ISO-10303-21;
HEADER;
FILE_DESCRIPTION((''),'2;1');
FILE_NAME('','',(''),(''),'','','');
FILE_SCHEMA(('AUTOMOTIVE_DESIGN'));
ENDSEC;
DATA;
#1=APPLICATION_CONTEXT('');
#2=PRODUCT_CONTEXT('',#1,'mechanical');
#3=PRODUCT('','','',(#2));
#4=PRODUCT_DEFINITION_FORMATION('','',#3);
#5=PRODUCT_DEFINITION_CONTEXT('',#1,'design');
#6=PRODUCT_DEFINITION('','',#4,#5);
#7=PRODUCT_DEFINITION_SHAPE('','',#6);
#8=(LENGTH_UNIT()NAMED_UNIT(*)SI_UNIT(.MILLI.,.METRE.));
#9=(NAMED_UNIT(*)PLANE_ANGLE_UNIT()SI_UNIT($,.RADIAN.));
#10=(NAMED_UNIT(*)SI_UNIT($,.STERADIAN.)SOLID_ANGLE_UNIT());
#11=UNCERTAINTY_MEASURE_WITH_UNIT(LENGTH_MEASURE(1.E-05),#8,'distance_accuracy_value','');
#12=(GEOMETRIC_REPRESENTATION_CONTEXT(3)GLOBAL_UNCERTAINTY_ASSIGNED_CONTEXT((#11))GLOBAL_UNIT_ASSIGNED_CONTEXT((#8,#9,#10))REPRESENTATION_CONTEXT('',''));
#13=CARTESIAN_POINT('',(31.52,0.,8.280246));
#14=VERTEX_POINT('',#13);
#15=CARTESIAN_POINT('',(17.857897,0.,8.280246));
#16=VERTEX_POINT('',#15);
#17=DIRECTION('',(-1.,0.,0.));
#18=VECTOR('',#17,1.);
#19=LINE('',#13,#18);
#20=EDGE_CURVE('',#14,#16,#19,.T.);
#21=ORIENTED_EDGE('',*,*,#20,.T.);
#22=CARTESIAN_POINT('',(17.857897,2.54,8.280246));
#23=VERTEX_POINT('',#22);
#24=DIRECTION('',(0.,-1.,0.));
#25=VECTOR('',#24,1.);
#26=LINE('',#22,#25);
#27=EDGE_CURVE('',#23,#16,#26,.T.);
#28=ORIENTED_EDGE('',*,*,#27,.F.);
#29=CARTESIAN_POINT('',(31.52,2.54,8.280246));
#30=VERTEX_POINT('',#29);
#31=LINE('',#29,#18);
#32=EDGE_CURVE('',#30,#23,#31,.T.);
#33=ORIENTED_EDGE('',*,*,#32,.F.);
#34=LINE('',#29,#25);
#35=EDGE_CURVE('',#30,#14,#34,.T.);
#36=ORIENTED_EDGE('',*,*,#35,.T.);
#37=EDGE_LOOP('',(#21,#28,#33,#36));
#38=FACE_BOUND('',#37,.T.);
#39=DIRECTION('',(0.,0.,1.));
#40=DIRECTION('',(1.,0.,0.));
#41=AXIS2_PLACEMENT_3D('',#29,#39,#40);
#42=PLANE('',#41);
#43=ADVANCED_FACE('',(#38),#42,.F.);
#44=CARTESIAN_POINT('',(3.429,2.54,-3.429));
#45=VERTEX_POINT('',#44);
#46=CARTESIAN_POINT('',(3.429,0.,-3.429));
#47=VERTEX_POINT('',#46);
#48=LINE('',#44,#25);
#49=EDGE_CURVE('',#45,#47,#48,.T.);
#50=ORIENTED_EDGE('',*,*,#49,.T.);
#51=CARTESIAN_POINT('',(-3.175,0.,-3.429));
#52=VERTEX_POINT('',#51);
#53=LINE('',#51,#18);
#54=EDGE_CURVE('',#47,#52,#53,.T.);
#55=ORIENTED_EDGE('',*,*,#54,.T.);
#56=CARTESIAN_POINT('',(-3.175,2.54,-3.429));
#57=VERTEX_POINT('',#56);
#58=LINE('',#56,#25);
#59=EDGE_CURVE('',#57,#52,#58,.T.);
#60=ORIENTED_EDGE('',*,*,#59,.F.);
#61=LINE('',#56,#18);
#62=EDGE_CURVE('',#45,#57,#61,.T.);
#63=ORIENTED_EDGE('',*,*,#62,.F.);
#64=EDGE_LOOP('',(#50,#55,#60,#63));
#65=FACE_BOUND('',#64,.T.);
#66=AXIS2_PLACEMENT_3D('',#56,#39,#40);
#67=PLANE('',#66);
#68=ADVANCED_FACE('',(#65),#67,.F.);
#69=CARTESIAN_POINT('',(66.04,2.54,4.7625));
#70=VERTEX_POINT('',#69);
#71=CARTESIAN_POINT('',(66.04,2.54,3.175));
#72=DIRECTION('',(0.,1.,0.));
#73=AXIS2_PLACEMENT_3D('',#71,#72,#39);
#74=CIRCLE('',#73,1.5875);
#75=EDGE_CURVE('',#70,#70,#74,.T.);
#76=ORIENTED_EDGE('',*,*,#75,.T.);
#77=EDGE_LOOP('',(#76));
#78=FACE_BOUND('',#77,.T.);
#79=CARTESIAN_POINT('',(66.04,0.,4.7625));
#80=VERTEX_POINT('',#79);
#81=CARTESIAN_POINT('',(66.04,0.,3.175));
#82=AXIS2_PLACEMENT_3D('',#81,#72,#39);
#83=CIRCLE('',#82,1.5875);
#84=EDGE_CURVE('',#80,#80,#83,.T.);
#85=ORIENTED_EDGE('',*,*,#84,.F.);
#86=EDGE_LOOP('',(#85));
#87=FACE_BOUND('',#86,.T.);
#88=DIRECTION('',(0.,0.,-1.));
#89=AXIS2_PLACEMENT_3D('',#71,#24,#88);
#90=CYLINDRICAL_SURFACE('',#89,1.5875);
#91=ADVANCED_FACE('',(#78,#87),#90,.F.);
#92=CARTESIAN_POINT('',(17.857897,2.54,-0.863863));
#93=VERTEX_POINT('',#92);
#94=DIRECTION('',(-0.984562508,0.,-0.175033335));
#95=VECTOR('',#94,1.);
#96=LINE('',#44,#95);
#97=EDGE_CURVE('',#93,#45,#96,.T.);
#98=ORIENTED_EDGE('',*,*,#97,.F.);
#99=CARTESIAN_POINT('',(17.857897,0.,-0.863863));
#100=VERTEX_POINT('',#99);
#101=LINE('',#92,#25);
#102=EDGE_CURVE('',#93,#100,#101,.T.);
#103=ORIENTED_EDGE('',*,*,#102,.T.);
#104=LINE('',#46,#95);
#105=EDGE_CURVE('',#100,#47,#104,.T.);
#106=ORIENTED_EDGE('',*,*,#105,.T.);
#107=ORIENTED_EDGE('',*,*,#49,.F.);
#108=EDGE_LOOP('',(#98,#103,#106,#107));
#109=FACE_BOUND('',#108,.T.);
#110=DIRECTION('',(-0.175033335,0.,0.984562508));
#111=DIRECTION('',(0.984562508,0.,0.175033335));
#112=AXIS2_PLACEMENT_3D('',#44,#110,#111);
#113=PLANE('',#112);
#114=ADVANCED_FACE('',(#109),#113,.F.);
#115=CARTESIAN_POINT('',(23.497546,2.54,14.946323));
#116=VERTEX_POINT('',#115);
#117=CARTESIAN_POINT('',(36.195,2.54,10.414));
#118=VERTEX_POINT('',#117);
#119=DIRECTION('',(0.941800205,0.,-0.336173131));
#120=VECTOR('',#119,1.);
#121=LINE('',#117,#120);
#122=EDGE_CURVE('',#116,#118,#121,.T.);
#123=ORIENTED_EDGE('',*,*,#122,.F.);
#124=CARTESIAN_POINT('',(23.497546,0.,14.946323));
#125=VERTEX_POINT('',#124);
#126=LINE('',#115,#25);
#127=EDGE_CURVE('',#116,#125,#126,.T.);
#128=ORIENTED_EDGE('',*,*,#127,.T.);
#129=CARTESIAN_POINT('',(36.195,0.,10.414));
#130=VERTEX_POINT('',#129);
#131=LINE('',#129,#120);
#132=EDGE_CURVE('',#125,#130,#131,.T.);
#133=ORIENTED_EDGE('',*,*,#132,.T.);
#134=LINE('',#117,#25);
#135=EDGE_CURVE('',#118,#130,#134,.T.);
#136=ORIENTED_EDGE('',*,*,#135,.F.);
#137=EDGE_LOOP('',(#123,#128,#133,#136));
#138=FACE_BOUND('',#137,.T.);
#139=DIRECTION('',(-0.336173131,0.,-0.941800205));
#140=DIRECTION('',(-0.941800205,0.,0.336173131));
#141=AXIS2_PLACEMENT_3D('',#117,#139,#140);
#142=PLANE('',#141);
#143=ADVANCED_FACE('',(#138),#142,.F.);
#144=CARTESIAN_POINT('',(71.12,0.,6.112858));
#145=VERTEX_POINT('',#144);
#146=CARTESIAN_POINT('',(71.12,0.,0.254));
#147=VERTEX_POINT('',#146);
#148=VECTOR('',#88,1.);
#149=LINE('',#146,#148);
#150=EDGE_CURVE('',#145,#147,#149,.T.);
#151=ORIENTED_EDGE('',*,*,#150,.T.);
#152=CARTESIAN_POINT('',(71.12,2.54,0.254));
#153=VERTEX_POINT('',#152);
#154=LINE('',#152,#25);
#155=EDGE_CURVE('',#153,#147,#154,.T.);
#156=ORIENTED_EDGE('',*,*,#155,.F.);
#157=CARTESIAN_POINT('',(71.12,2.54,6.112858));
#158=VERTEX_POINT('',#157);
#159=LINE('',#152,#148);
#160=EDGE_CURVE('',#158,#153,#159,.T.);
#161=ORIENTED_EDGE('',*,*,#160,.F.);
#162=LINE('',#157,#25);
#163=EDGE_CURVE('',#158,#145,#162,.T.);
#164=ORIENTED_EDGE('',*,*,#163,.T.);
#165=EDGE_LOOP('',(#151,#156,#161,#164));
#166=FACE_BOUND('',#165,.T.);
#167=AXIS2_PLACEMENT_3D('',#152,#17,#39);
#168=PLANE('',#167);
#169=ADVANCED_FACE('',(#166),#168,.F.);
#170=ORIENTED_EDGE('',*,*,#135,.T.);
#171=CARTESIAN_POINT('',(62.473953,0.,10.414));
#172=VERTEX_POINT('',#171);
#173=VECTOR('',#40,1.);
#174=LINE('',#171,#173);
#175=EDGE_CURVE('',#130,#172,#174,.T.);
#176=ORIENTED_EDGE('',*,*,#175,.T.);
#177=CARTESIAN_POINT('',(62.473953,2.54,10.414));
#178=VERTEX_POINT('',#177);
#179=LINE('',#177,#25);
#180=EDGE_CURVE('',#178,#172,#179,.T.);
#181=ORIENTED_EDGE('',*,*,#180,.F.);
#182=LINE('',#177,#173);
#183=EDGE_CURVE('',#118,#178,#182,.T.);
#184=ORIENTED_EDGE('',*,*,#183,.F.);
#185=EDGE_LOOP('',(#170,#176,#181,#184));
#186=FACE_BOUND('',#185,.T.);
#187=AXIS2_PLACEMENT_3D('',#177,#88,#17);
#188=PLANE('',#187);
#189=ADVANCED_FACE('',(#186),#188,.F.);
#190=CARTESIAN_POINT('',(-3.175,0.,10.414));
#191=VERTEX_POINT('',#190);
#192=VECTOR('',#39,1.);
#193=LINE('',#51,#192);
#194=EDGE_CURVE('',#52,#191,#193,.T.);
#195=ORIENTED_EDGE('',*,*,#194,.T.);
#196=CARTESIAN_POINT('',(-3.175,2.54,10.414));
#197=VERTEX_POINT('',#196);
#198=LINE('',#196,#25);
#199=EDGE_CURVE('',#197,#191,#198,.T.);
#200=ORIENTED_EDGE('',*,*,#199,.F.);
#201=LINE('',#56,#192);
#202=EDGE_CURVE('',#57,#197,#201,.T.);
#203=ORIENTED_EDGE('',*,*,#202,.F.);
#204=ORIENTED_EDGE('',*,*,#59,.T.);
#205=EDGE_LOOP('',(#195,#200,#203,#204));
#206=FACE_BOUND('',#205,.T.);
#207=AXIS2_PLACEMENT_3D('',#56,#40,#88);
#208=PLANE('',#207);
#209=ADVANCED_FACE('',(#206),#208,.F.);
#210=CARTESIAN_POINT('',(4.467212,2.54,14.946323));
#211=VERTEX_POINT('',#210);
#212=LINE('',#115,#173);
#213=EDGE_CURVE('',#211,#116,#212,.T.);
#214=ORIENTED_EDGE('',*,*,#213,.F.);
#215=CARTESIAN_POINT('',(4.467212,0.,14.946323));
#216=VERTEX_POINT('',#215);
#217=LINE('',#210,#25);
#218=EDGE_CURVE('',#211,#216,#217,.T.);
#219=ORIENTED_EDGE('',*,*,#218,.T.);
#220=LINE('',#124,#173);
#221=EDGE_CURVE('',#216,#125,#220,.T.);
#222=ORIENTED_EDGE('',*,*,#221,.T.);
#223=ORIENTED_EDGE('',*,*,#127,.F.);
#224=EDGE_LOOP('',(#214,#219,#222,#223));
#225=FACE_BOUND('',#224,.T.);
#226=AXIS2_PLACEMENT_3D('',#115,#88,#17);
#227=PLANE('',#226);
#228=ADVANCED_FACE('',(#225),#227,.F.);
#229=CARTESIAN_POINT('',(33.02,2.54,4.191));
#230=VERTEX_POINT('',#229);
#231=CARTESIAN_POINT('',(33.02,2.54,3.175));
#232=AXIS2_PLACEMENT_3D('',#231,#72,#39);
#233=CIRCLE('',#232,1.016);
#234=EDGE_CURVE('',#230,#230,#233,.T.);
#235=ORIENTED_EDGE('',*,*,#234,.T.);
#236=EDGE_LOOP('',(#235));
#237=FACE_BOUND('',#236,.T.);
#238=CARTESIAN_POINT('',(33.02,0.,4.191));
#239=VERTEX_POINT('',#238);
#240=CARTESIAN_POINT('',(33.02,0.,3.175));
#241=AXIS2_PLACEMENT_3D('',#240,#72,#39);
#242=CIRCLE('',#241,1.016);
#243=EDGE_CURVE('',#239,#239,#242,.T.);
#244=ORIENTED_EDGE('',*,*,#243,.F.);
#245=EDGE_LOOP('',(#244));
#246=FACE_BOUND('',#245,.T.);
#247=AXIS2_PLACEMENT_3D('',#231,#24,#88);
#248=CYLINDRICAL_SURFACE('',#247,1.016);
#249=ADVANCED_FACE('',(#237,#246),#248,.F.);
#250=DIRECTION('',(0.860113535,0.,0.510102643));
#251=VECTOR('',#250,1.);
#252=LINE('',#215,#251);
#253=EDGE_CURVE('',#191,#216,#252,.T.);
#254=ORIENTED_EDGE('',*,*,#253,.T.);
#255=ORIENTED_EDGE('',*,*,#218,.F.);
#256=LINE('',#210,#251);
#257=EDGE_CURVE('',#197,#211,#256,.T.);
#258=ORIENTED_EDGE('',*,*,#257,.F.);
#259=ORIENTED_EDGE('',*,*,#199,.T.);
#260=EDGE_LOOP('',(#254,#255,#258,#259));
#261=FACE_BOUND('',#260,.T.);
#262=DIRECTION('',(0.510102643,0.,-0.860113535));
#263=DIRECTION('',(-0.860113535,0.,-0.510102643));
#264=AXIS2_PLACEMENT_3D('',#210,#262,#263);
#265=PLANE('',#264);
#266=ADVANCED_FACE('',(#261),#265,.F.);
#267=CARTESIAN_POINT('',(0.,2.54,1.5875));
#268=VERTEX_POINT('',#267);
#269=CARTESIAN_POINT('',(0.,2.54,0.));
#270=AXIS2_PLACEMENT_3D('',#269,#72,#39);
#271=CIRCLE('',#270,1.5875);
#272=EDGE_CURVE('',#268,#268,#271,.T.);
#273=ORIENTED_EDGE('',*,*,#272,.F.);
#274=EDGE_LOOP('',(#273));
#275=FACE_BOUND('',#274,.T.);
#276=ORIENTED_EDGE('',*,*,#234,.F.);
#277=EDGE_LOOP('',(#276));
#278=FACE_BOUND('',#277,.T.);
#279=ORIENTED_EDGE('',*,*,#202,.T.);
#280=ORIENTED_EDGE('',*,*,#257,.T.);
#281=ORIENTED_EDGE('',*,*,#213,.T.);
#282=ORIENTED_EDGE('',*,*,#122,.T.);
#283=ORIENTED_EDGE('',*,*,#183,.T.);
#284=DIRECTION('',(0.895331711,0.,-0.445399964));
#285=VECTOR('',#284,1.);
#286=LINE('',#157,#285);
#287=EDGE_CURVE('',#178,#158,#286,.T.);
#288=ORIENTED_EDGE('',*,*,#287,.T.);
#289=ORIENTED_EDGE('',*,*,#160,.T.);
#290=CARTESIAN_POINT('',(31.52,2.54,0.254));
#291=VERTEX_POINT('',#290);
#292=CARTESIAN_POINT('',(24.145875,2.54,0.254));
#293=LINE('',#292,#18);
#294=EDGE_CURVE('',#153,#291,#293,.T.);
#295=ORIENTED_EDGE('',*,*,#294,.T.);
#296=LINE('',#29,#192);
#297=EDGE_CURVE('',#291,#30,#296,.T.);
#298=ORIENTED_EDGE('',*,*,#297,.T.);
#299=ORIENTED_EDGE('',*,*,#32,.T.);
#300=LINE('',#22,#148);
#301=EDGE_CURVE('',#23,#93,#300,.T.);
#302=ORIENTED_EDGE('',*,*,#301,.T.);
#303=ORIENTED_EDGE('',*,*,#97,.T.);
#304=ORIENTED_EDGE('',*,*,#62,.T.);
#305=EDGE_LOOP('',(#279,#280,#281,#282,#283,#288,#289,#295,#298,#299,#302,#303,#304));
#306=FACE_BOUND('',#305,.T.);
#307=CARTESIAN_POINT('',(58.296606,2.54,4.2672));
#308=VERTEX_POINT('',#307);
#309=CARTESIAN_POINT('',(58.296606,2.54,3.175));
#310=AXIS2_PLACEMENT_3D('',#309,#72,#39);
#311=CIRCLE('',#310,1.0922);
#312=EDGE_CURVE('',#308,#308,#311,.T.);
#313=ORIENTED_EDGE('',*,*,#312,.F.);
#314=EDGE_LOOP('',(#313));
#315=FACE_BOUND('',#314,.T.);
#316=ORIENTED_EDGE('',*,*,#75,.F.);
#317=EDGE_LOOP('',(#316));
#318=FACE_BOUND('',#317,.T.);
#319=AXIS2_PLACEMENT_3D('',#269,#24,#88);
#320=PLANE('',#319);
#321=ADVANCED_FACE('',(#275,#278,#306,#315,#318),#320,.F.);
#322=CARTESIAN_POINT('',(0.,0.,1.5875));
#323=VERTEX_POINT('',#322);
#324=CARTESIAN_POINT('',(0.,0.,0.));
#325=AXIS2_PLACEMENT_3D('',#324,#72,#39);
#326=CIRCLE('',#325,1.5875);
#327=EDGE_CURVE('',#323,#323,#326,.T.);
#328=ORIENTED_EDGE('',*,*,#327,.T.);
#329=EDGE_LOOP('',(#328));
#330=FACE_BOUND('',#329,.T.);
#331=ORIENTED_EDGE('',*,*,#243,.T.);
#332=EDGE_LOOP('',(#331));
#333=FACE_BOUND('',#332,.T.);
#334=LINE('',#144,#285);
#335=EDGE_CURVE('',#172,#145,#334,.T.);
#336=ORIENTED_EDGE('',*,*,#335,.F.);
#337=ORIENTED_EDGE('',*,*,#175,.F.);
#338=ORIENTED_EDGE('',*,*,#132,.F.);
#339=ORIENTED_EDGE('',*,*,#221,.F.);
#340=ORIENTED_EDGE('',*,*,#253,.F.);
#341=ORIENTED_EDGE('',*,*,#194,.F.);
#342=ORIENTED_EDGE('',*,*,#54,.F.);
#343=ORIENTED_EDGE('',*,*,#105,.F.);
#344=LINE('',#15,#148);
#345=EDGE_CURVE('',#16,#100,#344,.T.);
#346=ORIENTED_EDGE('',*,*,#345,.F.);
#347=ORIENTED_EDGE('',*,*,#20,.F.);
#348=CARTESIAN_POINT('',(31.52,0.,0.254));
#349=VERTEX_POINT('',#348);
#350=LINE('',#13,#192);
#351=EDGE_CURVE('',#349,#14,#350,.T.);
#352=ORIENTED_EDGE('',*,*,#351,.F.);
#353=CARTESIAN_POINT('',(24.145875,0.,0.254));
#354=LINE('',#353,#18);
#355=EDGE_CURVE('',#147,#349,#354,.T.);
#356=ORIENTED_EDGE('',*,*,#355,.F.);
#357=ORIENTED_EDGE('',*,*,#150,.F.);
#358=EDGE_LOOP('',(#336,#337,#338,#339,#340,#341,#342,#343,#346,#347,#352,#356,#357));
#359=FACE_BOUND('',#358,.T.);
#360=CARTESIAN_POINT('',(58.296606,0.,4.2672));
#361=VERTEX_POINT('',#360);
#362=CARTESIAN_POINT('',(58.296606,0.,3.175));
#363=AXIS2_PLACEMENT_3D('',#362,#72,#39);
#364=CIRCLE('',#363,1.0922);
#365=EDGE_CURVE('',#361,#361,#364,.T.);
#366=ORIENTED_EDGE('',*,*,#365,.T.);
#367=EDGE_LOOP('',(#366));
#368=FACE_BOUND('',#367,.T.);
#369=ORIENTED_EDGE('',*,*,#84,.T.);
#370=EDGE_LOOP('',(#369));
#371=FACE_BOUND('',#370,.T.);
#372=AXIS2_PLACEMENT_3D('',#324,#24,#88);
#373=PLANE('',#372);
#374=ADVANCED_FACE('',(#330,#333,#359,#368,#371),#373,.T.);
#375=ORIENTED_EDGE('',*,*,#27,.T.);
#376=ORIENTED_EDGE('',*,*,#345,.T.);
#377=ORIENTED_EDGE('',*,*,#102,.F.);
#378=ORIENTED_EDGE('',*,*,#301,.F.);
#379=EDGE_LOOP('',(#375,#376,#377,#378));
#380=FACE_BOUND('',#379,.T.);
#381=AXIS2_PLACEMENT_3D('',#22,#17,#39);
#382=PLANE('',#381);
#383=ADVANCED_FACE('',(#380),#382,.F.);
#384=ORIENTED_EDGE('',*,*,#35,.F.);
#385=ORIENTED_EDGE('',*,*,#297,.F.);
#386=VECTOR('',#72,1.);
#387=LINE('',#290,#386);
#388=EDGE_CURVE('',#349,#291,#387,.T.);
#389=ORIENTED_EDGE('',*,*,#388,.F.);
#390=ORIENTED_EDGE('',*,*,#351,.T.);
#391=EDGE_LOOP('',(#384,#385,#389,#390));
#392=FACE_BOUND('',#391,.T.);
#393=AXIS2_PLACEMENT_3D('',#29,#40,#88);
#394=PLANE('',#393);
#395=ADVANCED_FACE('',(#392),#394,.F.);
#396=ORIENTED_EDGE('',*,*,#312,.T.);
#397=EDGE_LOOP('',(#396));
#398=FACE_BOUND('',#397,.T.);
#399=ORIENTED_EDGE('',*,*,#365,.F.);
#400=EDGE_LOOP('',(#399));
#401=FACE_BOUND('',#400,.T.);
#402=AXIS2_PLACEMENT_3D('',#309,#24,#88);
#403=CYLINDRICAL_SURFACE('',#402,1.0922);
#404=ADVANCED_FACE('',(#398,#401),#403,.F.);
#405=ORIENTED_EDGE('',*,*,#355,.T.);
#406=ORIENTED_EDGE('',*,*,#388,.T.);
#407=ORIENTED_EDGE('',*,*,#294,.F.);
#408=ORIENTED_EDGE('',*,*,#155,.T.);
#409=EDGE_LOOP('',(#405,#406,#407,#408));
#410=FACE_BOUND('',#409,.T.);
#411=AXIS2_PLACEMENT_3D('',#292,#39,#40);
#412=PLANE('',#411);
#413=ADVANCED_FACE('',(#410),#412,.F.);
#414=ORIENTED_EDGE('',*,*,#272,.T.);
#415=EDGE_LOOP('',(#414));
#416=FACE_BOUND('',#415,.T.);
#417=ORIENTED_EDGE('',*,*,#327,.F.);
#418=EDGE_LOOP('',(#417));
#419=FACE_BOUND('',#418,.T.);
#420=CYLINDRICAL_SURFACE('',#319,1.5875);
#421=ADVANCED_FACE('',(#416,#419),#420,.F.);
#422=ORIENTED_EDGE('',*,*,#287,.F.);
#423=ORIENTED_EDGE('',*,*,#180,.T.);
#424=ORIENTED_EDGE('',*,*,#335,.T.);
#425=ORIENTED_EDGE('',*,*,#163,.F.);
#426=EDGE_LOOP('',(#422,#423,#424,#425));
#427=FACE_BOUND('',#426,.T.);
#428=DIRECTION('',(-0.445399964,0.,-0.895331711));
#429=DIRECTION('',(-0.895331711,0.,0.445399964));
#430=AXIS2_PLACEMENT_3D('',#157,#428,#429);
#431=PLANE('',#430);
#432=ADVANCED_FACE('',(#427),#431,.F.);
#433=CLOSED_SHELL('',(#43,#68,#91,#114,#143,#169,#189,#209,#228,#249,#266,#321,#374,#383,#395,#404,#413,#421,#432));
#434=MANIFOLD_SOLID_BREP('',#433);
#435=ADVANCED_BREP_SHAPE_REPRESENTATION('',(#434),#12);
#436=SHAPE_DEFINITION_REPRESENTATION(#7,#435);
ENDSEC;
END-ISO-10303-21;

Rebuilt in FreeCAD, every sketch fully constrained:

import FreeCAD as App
import Part
import Sketcher
Q = App.Units.Quantity


def add_polygon(sketch, points):
    """Adds a closed chain of lines whose ends are joined by coincident constraints."""
    first, n = sketch.GeometryCount, len(points)
    for a, b in zip(points, points[1:] + points[:1]):
        sketch.addGeometry(Part.LineSegment(App.Vector(*a, 0), App.Vector(*b, 0)), False)
    for i in range(n):
        sketch.addConstraint(Sketcher.Constraint("Coincident", first + i, 2, first + (i + 1) % n, 1))

doc = App.newDocument("Part")
params = doc.addObject("Spreadsheet::Sheet", "Params")
for row, (alias, value) in enumerate([
    ("sketch1_diameter", "0.08 in"),
    ("sketch1_diameter2", "0.086 in"),
    ("sketch1_diameter3", "0.125 in"),
    ("sketch1_width", "0.26 in"),
    ("sketch1_height", "0.545 in"),
    ("pad1_length", "0.1 in"),
    ("pocket1_length", "0.1 in"),
], start=1):
    params.set(f"A{row}", alias)
    params.set(f"B{row}", "=" + value)
    params.setAlias(f"B{row}", alias)

body = doc.addObject("PartDesign::Body", "Body")

# Sketch on XZ plane
sketch1 = doc.addObject("Sketcher::SketchObject", "Sketch")
body.addObject(sketch1)
sketch1.AttachmentSupport = (doc.XZ_Plane, [""])
sketch1.MapMode = "FlatFace"
add_polygon(sketch1, [(-3.2, -3.4), (-3.2, 10.4), (4.5, 14.9), (23.5, 14.9), (36.2, 10.4), (62.5, 10.4), (71.1, 6.1), (71.1, 0.3), (24.1, 0.3), (3.4, -3.4)])  # lines 0-9
sketch1.addGeometry(Part.Circle(App.Vector(33, 3.2, 0), App.Vector(0, 0, 1), 1), False)  # 10
sketch1.addGeometry(Part.Circle(App.Vector(58.3, 3.2, 0), App.Vector(0, 0, 1), 1.1), False)  # 11
sketch1.addGeometry(Part.Circle(App.Vector(66, 3.2, 0), App.Vector(0, 0, 1), 1.6), False)  # 12
sketch1.addGeometry(Part.Circle(App.Vector(0, 0, 0), App.Vector(0, 0, 1), 1.6), False)  # 13
sketch1.addConstraint([
    Sketcher.Constraint("Vertical", 0),
    Sketcher.Constraint("Horizontal", 2),
    Sketcher.Constraint("Horizontal", 4),
    Sketcher.Constraint("Vertical", 6),
    Sketcher.Constraint("Horizontal", 7),
    Sketcher.Constraint("Horizontal", 9),
    Sketcher.Constraint("Coincident", 13, 3, -1, 1),
    Sketcher.Constraint("Equal", 12, 13),
    Sketcher.Constraint("Horizontal", 10, 3, 11, 3),
    Sketcher.Constraint("Horizontal", 11, 3, 12, 3),
    Sketcher.Constraint("Horizontal", 0, 2, 3, 2),
    Sketcher.Constraint("Diameter", 10, Q("0.08 in")),
    Sketcher.Constraint("Diameter", 11, Q("0.086 in")),
    Sketcher.Constraint("Diameter", 12, Q("0.125 in")),
    Sketcher.Constraint("DistanceX", 9, 2, 9, 1, Q("0.26 in")),
    Sketcher.Constraint("DistanceX", -1, 1, 10, 3, Q("1.3 in")),
    Sketcher.Constraint("DistanceX", -1, 1, 12, 3, Q("2.6 in")),
    Sketcher.Constraint("DistanceX", -1, 1, 5, 2, Q("2.8 in")),
    Sketcher.Constraint("DistanceY", 6, 2, 4, 2, Q("0.4 in")),
    Sketcher.Constraint("DistanceY", 0, 1, 0, 2, Q("0.545 in")),
    Sketcher.Constraint("DistanceY", -1, 1, 0, 2, Q("0.41 in")),
    Sketcher.Constraint("DistanceY", -1, 1, 10, 3, Q("0.125 in")),
    Sketcher.Constraint("DistanceX", 0, 2, -1, 1, Q("0.125 in")),
    Sketcher.Constraint("DistanceX", -1, 1, 3, 2, Q("1.425 in")),
    Sketcher.Constraint("Distance", 1, Q("8.88512 mm")),
    Sketcher.Constraint("Distance", 3, Q("13.48211 mm")),
    Sketcher.Constraint("Distance", 5, Q("9.656809 mm")),
    Sketcher.Constraint("DistanceX", 2, 1, 2, 2, Q("19.030335 mm")),
    Sketcher.Constraint("DistanceX", 4, 1, 4, 2, Q("26.278953 mm")),
    Sketcher.Constraint("DistanceX", 7, 2, 7, 1, Q("46.974125 mm")),
    Sketcher.Constraint("DistanceX", 2, 2, 11, 3, Q("34.79906 mm")),
])
sketch1.setExpression("Constraints[21]", "Params.sketch1_diameter")
sketch1.setExpression("Constraints[22]", "Params.sketch1_diameter2")
sketch1.setExpression("Constraints[23]", "Params.sketch1_diameter3")
sketch1.setExpression("Constraints[24]", "Params.sketch1_width")
sketch1.setExpression("Constraints[29]", "Params.sketch1_height")
pad1 = doc.addObject("PartDesign::Pad", "Pad")
body.addObject(pad1)
pad1.Profile = sketch1
pad1.setExpression("Length", "Params.pad1_length")
pad1.Reversed = True

# Sketch on XZ plane
sketch2 = doc.addObject("Sketcher::SketchObject", "Sketch001")
body.addObject(sketch2)
sketch2.AttachmentSupport = (doc.XZ_Plane, [""])
sketch2.MapMode = "FlatFace"
add_polygon(sketch2, [(18, 8), (18, -1), (32, -1), (32, 8)])  # lines 0-3
sketch2.addConstraint([
    Sketcher.Constraint("Vertical", 0),
    Sketcher.Constraint("Horizontal", 1),
    Sketcher.Constraint("Vertical", 2),
    Sketcher.Constraint("Horizontal", 3),
    Sketcher.Constraint("DistanceX", -1, 1, 1, 2, Q("31.52 mm")),
    Sketcher.Constraint("DistanceX", 1, 1, 1, 2, Q("13.662103 mm")),
    Sketcher.Constraint("DistanceY", 0, 2, 0, 1, Q("9.772536 mm")),
    Sketcher.Constraint("DistanceY", 0, 2, -1, 1, Q("1.49229 mm")),
])
pocket1 = doc.addObject("PartDesign::Pocket", "Pocket")
body.addObject(pocket1)
pocket1.Profile = sketch2
pocket1.setExpression("Length", "Params.pocket1_length")

doc.recompute()
